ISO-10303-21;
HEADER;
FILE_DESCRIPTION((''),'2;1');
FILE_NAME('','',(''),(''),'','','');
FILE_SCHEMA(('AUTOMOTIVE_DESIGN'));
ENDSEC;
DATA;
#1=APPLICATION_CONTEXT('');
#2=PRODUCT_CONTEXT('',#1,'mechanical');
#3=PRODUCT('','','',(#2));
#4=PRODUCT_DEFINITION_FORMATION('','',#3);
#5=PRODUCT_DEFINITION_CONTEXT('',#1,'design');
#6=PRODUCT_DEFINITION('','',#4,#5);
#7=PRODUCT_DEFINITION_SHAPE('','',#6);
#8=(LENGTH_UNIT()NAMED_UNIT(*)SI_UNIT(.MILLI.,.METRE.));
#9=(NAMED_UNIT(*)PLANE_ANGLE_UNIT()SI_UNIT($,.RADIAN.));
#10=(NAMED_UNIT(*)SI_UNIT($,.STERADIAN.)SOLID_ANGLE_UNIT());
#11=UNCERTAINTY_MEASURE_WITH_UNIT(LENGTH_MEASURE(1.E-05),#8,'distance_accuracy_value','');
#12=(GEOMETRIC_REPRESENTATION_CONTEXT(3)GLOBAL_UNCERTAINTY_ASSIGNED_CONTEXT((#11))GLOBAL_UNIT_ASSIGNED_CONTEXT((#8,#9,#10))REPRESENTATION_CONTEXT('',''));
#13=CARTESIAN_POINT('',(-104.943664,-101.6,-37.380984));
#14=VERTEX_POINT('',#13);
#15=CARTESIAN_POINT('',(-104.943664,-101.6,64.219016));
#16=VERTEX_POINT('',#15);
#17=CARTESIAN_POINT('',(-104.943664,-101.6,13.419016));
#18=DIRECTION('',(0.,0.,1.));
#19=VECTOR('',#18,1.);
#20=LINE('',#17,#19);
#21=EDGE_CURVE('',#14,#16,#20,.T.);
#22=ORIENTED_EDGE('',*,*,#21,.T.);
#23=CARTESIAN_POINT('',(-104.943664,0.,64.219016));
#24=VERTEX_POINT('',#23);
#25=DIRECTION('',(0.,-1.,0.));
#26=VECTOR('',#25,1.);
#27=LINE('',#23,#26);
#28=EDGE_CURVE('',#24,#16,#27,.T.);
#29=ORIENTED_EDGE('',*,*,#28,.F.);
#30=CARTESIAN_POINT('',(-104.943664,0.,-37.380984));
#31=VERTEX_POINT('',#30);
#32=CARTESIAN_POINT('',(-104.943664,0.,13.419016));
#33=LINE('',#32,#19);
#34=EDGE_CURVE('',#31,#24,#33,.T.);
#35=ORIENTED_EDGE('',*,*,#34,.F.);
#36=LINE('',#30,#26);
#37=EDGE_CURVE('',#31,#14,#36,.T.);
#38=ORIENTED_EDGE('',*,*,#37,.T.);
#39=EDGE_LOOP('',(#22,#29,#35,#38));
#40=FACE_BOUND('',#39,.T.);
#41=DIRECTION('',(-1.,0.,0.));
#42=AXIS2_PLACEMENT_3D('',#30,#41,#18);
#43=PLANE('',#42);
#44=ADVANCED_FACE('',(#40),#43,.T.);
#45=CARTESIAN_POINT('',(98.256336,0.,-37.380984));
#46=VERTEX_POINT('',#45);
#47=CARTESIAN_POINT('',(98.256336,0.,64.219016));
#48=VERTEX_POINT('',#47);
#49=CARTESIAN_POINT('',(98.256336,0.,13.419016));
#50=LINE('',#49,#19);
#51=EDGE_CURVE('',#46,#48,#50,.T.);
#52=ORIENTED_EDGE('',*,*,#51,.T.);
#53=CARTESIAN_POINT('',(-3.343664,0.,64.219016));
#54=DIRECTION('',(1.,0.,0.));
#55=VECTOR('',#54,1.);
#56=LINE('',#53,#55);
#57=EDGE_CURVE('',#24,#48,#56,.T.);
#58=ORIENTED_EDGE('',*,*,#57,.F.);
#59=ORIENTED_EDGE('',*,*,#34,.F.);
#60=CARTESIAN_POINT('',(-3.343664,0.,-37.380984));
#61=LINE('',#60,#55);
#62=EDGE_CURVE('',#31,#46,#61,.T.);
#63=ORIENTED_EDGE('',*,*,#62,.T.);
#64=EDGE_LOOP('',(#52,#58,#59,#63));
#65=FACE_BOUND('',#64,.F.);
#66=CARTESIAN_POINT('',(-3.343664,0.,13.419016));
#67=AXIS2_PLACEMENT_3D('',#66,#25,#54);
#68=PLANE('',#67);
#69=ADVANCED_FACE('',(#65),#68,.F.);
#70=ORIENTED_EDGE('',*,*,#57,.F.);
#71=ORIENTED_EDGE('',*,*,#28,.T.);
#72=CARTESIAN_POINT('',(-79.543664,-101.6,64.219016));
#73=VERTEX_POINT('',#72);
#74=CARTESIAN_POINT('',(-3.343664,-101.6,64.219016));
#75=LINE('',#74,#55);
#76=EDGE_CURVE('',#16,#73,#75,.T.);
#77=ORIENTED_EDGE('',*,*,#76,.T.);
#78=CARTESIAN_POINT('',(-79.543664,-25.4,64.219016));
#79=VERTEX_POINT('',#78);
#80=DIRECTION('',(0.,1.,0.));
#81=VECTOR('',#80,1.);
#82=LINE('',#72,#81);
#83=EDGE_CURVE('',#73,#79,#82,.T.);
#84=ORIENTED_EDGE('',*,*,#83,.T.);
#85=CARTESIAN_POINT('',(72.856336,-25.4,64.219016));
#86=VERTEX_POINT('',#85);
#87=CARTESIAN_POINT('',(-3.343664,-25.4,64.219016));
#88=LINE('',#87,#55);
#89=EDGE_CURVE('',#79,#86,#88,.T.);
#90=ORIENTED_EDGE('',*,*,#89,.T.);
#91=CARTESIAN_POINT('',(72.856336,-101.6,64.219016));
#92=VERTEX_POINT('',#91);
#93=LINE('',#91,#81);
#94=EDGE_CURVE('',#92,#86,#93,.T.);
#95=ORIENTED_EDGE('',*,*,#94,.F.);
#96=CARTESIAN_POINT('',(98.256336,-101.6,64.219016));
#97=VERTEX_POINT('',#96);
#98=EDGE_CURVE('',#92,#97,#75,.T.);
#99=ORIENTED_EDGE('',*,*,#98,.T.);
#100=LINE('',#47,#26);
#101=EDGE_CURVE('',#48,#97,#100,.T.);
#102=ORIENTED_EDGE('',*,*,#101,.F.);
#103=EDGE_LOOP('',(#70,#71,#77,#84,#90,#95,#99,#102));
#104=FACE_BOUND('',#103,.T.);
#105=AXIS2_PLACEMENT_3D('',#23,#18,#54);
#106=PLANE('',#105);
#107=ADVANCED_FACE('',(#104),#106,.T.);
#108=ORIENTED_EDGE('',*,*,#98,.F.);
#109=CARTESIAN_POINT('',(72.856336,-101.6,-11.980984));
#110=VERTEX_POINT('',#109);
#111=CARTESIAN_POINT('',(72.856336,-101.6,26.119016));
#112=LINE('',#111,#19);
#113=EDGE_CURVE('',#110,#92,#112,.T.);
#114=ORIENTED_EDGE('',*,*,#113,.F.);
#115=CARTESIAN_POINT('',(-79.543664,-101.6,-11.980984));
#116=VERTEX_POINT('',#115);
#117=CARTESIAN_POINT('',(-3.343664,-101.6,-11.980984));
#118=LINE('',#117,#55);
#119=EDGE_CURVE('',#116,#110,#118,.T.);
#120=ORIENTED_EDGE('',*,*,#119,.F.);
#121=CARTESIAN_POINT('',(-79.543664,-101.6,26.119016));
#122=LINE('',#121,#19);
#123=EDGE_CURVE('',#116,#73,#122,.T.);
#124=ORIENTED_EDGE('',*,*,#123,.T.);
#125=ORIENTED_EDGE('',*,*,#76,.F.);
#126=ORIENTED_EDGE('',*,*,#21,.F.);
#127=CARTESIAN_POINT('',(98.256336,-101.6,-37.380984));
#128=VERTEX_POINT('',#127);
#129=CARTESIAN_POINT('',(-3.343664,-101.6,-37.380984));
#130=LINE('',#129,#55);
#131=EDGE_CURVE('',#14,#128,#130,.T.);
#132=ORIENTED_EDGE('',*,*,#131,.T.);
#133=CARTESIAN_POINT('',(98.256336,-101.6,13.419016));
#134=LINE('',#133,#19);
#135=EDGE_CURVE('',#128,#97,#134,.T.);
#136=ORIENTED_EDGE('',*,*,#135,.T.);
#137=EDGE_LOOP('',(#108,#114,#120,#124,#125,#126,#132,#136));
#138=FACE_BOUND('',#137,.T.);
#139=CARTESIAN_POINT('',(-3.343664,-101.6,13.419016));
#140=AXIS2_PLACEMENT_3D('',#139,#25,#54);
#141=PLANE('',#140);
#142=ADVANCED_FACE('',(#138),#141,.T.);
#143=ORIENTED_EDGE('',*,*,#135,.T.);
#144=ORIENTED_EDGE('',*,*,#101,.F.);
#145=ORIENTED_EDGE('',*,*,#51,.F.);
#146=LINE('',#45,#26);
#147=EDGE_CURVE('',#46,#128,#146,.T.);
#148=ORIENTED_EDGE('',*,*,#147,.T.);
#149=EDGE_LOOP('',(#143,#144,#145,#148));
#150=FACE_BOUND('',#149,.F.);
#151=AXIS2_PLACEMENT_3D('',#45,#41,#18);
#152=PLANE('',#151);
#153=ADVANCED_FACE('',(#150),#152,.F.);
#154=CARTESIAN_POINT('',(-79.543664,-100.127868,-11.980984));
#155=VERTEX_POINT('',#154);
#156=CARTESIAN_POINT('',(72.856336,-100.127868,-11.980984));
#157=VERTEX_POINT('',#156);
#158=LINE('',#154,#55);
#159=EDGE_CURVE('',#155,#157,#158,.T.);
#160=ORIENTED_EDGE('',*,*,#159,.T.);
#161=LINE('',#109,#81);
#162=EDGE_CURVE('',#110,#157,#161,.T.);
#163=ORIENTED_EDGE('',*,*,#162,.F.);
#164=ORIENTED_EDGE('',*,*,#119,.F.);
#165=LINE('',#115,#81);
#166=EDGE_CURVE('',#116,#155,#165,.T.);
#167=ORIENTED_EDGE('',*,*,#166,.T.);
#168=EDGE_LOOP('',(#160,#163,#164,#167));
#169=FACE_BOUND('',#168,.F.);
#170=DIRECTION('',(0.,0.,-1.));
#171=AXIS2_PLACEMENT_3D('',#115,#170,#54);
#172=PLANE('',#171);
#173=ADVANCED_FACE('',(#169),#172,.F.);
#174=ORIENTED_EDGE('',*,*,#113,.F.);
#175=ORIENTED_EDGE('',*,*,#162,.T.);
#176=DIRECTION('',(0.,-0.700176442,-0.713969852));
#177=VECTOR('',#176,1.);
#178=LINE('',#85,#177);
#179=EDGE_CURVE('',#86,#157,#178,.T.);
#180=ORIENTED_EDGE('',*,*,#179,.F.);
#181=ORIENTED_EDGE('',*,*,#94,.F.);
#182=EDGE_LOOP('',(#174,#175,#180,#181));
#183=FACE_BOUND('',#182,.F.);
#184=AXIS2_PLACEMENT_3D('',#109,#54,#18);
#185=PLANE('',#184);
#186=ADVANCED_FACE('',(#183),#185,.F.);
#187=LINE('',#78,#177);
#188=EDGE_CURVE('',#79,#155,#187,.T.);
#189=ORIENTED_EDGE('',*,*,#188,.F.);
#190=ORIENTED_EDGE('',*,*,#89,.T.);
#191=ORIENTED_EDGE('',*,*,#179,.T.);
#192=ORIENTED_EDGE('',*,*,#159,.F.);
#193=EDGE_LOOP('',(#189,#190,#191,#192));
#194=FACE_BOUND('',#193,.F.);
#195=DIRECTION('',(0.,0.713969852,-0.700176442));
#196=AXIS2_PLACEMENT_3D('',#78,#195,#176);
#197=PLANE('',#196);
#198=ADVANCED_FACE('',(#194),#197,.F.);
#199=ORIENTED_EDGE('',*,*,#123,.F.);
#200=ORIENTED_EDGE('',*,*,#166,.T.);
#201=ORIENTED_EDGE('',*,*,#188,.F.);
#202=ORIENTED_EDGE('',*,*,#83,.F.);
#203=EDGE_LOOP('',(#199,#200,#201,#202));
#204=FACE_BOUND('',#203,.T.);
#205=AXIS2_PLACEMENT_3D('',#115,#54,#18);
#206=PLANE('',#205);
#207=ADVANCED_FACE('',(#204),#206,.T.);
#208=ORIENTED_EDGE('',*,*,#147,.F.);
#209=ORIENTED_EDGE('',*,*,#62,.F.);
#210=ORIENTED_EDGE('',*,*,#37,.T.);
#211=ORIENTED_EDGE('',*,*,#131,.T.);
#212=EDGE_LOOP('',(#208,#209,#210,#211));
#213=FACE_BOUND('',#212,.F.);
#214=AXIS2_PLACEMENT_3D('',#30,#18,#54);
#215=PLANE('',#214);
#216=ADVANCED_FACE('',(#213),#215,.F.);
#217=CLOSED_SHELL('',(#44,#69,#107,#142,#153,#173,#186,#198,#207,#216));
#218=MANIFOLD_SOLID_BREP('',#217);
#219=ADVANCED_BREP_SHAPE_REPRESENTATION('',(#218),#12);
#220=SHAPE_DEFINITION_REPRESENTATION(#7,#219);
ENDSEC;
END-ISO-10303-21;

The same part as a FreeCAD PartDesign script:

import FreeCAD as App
import Part
import Sketcher

V = App.Vector
Q = App.Units.Quantity

doc = App.newDocument("Part")
body = doc.addObject("PartDesign::Body", "Body")

sketch1 = doc.addObject("Sketcher::SketchObject", "Sketch")
body.addObject(sketch1)
sketch1.AttachmentSupport = (doc.XZ_Plane, [""])
sketch1.MapMode = "FlatFace"
sketch1.addGeometry([
    Part.LineSegment(V(-105, 64, 0), V(-105, -37, 0)),
    Part.LineSegment(V(-105, -37, 0), V(98, -37, 0)),
    Part.LineSegment(V(98, -37, 0), V(98, 64, 0)),
    Part.LineSegment(V(98, 64, 0), V(-105, 64, 0)),
], False)
sketch1.addConstraint([
    Sketcher.Constraint("Coincident", 0, 2, 1, 1),
    Sketcher.Constraint("Coincident", 1, 2, 2, 1),
    Sketcher.Constraint("Coincident", 2, 2, 3, 1),
    Sketcher.Constraint("Coincident", 3, 2, 0, 1),
    Sketcher.Constraint("Vertical", 0),
    Sketcher.Constraint("Horizontal", 1),
    Sketcher.Constraint("Vertical", 2),
    Sketcher.Constraint("Horizontal", 3),
    Sketcher.Constraint("DistanceX", 1, 1, 1, 2, Q("8 in")),
    Sketcher.Constraint("DistanceY", 0, 2, 0, 1, Q("4 in")),
    Sketcher.Constraint("DistanceX", 0, 2, -1, 1, Q("104.943664 mm")),
    Sketcher.Constraint("DistanceY", 0, 2, -1, 1, Q("37.380984 mm")),
])
pad1 = doc.addObject("PartDesign::Pad", "Pad")
body.addObject(pad1)
pad1.Profile = sketch1
pad1.Length = Q("4 in")

sketch2 = doc.addObject("Sketcher::SketchObject", "Sketch001")
body.addObject(sketch2)
sketch2.AttachmentSupport = (doc.XZ_Plane, [""])
sketch2.MapMode = "FlatFace"
sketch2.AttachmentOffset = App.Placement(V(0, 0, 4 * 25.4), App.Rotation())
sketch2.addGeometry([
    Part.LineSegment(V(-80, 64, 0), V(-80, -12, 0)),
    Part.LineSegment(V(-80, -12, 0), V(73, -12, 0)),
    Part.LineSegment(V(73, -12, 0), V(73, 64, 0)),
    Part.LineSegment(V(73, 64, 0), V(-80, 64, 0)),
], False)
sketch2.addConstraint([
    Sketcher.Constraint("Coincident", 0, 2, 1, 1),
    Sketcher.Constraint("Coincident", 1, 2, 2, 1),
    Sketcher.Constraint("Coincident", 2, 2, 3, 1),
    Sketcher.Constraint("Coincident", 3, 2, 0, 1),
    Sketcher.Constraint("Vertical", 0),
    Sketcher.Constraint("Horizontal", 1),
    Sketcher.Constraint("Vertical", 2),
    Sketcher.Constraint("Horizontal", 3),
    Sketcher.Constraint("DistanceX", 1, 1, 1, 2, Q("6 in")),
    Sketcher.Constraint("DistanceY", 0, 2, 0, 1, Q("3 in")),
    Sketcher.Constraint("DistanceX", 0, 2, -1, 1, Q("79.543664 mm")),
    Sketcher.Constraint("DistanceY", 0, 2, -1, 1, Q("11.980984 mm")),
])
pocket1 = doc.addObject("PartDesign::Pocket", "Pocket")
body.addObject(pocket1)
pocket1.Profile = sketch2
pocket1.Length = Q("3 in")

sketch3 = doc.addObject("Sketcher::SketchObject", "Sketch002")
body.addObject(sketch3)
sketch3.AttachmentSupport = (doc.YZ_Plane, [""])
sketch3.MapMode = "FlatFace"
sketch3.AttachmentOffset = App.Placement(V(0, 0, -79.543664), App.Rotation())
sketch3.addGeometry([
    Part.LineSegment(V(-25, -12, 0), V(-25, 64, 0)),
    Part.LineSegment(V(-25, 64, 0), V(-100, -12, 0)),
    Part.LineSegment(V(-100, -12, 0), V(-25, -12, 0)),
], False)
sketch3.addConstraint([
    Sketcher.Constraint("Coincident", 0, 2, 1, 1),
    Sketcher.Constraint("Coincident", 1, 2, 2, 1),
    Sketcher.Constraint("Coincident", 2, 2, 0, 1),
    Sketcher.Constraint("Vertical", 0),
    Sketcher.Constraint("Horizontal", 2),
    Sketcher.Constraint("DistanceY", 0, 1, 0, 2, Q("3 in")),
    Sketcher.Constraint("DistanceX", 0, 2, -1, 1, Q("1 in")),
    Sketcher.Constraint("DistanceX", 2, 1, 2, 2, Q("74.727868 mm")),
    Sketcher.Constraint("DistanceY", -1, 1, 0, 2, Q("64.219016 mm")),
])
pad2 = doc.addObject("PartDesign::Pad", "Pad001")
body.addObject(pad2)
pad2.Profile = sketch3
pad2.Length = Q("6 in")

doc.recompute()
